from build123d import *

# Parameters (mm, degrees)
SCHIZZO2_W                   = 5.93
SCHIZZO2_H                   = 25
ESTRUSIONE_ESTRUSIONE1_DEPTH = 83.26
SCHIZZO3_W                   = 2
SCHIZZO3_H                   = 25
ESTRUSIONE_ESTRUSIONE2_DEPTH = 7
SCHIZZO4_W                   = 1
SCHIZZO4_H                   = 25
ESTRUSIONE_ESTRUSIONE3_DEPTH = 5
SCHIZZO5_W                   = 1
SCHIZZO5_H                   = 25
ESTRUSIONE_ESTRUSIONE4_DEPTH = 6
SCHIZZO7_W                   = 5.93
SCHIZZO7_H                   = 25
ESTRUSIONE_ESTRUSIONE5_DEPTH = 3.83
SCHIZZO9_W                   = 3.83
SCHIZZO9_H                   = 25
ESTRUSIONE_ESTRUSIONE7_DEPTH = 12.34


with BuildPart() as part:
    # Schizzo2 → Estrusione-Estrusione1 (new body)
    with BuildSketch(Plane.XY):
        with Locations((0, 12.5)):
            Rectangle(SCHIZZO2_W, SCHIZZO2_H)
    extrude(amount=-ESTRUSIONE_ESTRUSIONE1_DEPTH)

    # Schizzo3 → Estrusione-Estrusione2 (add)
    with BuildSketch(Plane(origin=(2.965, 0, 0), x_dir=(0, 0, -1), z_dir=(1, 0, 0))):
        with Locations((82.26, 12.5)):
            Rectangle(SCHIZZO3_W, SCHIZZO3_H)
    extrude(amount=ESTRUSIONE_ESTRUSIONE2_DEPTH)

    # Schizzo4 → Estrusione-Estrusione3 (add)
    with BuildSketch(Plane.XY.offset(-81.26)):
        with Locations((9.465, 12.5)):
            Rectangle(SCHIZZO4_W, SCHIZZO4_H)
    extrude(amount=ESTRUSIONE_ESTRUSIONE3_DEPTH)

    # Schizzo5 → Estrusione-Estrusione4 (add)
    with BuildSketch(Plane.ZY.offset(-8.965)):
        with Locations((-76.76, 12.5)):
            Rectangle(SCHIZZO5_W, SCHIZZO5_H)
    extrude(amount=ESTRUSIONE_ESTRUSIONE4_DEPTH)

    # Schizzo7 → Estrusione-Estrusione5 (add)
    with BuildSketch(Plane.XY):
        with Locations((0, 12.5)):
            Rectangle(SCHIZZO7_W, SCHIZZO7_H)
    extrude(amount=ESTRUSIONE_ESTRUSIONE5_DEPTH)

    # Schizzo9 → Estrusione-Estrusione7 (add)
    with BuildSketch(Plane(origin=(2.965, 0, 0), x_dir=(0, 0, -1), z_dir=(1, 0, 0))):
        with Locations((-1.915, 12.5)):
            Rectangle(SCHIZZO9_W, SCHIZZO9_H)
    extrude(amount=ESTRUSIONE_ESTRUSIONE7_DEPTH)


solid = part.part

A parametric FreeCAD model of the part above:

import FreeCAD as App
import Part
import Sketcher
from FreeCAD import Vector


def add_polygon(sketch, points):
    """Adds a closed chain of lines whose ends are joined by coincident constraints."""
    first, n = sketch.GeometryCount, len(points)
    for a, b in zip(points, points[1:] + points[:1]):
        sketch.addGeometry(Part.LineSegment(App.Vector(*a, 0), App.Vector(*b, 0)), False)
    for i in range(n):
        sketch.addConstraint(Sketcher.Constraint("Coincident", first + i, 2, first + (i + 1) % n, 1))

doc = App.newDocument("Part")
body = doc.addObject("PartDesign::Body", "Body")

sketch1 = body.newObject("Sketcher::SketchObject", "Sketch")
sketch1.AttachmentSupport = (doc.getObject("XY_Plane"), [""])
sketch1.MapMode = "FlatFace"
add_polygon(sketch1, [(-2.965, 25), (-2.965, 0), (2.965, 0), (2.965, 25)])
sketch1.addConstraint([
    Sketcher.Constraint("Vertical", 0),
    Sketcher.Constraint("Horizontal", 1),
    Sketcher.Constraint("Vertical", 2),
    Sketcher.Constraint("Horizontal", 3),
    Sketcher.Constraint("Symmetric", 0, 2, 1, 2, -1, 1),
    Sketcher.Constraint("DistanceY", 0, 2, 0, 1, 25.0),
    Sketcher.Constraint("DistanceX", 1, 1, 1, 2, 5.93),
])
pad1 = body.newObject("PartDesign::Pad", "Pad")
pad1.Profile = sketch1
pad1.Length = 83.26
pad1.Reversed = True

sketch2 = body.newObject("Sketcher::SketchObject", "Sketch001")
sketch2.AttachmentSupport = (doc.getObject("YZ_Plane"), [""])
sketch2.MapMode = "FlatFace"
sketch2.AttachmentOffset = App.Placement(Vector(0, 0, 2.965), App.Rotation())
add_polygon(sketch2, [(25, -81.26), (0, -81.26), (0, -83.26), (25, -83.26)])
sketch2.addConstraint([
    Sketcher.Constraint("Horizontal", 0),
    Sketcher.Constraint("Vertical", 1),
    Sketcher.Constraint("Horizontal", 2),
    Sketcher.Constraint("Vertical", 3),
    Sketcher.Constraint("PointOnObject", 0, 2, -2),
    Sketcher.Constraint("DistanceX", 0, 2, 0, 1, 25.0),
    Sketcher.Constraint("DistanceY", 1, 2, 1, 1, 2.0),
    Sketcher.Constraint("DistanceY", 0, 2, -1, 1, 81.26),
])
pad2 = body.newObject("PartDesign::Pad", "Pad001")
pad2.Profile = sketch2
pad2.Length = 7

sketch3 = body.newObject("Sketcher::SketchObject", "Sketch002")
sketch3.AttachmentSupport = (doc.getObject("XY_Plane"), [""])
sketch3.MapMode = "FlatFace"
sketch3.AttachmentOffset = App.Placement(Vector(0, 0, -81.26), App.Rotation())
add_polygon(sketch3, [(8.965, 25), (8.965, 0), (9.965, 0), (9.965, 25)])
sketch3.addConstraint([
    Sketcher.Constraint("Vertical", 0),
    Sketcher.Constraint("Horizontal", 1),
    Sketcher.Constraint("Vertical", 2),
    Sketcher.Constraint("Horizontal", 3),
    Sketcher.Constraint("PointOnObject", 0, 2, -1),
    Sketcher.Constraint("DistanceX", 1, 1, 1, 2, 1.0),
    Sketcher.Constraint("DistanceY", 0, 2, 0, 1, 25.0),
    Sketcher.Constraint("DistanceX", -1, 1, 0, 2, 8.965),
])
pad3 = body.newObject("PartDesign::Pad", "Pad002")
pad3.Profile = sketch3
pad3.Length = 5

sketch4 = body.newObject("Sketcher::SketchObject", "Sketch003")
sketch4.AttachmentSupport = (doc.getObject("YZ_Plane"), [""])
sketch4.MapMode = "FlatFace"
sketch4.AttachmentOffset = App.Placement(Vector(0, 0, 8.965), App.Rotation())
add_polygon(sketch4, [(25, -77.26), (0, -77.26), (0, -76.26), (25, -76.26)])
sketch4.addConstraint([
    Sketcher.Constraint("Horizontal", 0),
    Sketcher.Constraint("Vertical", 1),
    Sketcher.Constraint("Horizontal", 2),
    Sketcher.Constraint("Vertical", 3),
    Sketcher.Constraint("PointOnObject", 0, 2, -2),
    Sketcher.Constraint("DistanceX", 0, 2, 0, 1, 25.0),
    Sketcher.Constraint("DistanceY", 1, 1, 1, 2, 1.0),
    Sketcher.Constraint("DistanceY", 0, 2, -1, 1, 77.26),
])
pad4 = body.newObject("PartDesign::Pad", "Pad003")
pad4.Profile = sketch4
pad4.Length = 6
pad4.Reversed = True

sketch5 = body.newObject("Sketcher::SketchObject", "Sketch004")
sketch5.AttachmentSupport = (doc.getObject("XY_Plane"), [""])
sketch5.MapMode = "FlatFace"
add_polygon(sketch5, [(-2.965, 25), (-2.965, 0), (2.965, 0), (2.965, 25)])
sketch5.addConstraint([
    Sketcher.Constraint("Vertical", 0),
    Sketcher.Constraint("Horizontal", 1),
    Sketcher.Constraint("Vertical", 2),
    Sketcher.Constraint("Horizontal", 3),
    Sketcher.Constraint("Symmetric", 0, 2, 1, 2, -1, 1),
    Sketcher.Constraint("DistanceY", 0, 2, 0, 1, 25.0),
    Sketcher.Constraint("DistanceX", 1, 1, 1, 2, 5.93),
])
pad5 = body.newObject("PartDesign::Pad", "Pad004")
pad5.Profile = sketch5
pad5.Length = 3.83

sketch6 = body.newObject("Sketcher::SketchObject", "Sketch005")
sketch6.AttachmentSupport = (doc.getObject("YZ_Plane"), [""])
sketch6.MapMode = "FlatFace"
sketch6.AttachmentOffset = App.Placement(Vector(0, 0, 2.965), App.Rotation())
add_polygon(sketch6, [(25, 3.83), (0, 3.83), (0, 0), (25, 0)])
sketch6.addConstraint([
    Sketcher.Constraint("Horizontal", 0),
    Sketcher.Constraint("Vertical", 1),
    Sketcher.Constraint("Horizontal", 2),
    Sketcher.Constraint("Vertical", 3),
    Sketcher.Constraint("Coincident", 1, 2, -1, 1),
    Sketcher.Constraint("DistanceX", 0, 2, 0, 1, 25.0),
    Sketcher.Constraint("DistanceY", 1, 2, 1, 1, 3.83),
])
pad6 = body.newObject("PartDesign::Pad", "Pad005")
pad6.Profile = sketch6
pad6.Length = 12.34

doc.recompute()
